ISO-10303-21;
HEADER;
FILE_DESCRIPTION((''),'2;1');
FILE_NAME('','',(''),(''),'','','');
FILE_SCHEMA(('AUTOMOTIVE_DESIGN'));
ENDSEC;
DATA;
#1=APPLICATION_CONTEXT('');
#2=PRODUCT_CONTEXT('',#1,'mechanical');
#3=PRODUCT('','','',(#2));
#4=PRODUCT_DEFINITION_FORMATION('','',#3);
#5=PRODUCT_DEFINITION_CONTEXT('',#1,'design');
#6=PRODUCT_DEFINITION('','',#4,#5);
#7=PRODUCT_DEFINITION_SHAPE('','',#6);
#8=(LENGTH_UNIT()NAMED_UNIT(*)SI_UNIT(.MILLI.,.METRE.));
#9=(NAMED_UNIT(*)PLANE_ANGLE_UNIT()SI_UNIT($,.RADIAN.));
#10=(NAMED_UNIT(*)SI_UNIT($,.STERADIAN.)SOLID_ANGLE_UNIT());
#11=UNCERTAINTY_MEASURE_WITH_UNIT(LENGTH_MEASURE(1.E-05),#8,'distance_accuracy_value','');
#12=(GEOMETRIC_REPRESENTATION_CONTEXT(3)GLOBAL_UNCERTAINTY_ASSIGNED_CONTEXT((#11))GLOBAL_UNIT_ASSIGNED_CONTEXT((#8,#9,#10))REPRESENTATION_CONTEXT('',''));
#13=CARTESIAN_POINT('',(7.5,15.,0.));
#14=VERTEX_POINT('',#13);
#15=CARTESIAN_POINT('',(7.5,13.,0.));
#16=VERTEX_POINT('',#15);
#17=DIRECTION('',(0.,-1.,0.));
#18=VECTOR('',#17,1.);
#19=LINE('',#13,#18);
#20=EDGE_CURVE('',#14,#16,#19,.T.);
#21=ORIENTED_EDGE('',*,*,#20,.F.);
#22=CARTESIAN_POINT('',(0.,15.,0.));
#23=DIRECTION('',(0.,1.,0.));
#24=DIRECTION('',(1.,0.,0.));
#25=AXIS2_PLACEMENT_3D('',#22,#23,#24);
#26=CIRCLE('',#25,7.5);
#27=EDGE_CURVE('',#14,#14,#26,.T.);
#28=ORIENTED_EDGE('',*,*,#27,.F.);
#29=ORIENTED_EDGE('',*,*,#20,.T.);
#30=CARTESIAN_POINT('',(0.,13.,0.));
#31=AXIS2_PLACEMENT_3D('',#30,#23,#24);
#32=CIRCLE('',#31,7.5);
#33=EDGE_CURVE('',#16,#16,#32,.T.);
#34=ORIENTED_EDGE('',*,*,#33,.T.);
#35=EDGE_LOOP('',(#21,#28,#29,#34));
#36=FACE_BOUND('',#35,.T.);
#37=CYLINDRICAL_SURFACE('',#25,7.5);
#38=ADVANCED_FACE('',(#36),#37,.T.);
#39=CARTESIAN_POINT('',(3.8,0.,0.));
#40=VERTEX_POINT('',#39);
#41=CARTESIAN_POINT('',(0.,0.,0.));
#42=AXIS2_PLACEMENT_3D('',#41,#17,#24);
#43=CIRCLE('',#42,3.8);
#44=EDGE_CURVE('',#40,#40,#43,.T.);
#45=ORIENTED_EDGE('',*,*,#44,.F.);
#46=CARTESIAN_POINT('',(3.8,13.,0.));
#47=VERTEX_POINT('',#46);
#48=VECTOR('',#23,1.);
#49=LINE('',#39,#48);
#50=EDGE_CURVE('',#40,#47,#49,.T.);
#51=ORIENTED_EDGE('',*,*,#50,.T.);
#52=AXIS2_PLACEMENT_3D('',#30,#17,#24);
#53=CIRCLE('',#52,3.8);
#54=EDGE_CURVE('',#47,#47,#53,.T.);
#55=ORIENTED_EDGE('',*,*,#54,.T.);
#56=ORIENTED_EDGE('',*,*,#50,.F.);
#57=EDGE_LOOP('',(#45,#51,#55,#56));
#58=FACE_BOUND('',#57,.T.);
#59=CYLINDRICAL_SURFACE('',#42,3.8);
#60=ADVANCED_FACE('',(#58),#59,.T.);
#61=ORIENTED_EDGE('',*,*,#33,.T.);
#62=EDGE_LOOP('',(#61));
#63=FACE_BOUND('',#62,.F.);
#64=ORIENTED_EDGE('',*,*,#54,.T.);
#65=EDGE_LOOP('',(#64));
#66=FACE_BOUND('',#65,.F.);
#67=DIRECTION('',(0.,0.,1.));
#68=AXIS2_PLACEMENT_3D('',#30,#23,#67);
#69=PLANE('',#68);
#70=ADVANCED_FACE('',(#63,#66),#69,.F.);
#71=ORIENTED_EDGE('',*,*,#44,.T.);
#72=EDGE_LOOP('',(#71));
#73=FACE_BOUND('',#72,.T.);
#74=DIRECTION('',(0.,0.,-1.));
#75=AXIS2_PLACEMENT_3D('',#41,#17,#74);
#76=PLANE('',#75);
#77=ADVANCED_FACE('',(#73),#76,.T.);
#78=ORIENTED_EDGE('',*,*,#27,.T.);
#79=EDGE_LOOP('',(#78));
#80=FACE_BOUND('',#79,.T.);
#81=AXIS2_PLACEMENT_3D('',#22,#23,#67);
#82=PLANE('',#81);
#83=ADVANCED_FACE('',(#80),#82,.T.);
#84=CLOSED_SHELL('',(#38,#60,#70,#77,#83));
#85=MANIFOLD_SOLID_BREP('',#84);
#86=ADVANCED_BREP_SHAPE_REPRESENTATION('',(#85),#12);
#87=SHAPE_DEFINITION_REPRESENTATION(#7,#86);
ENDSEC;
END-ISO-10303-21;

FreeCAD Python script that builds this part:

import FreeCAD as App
import Part
import Sketcher
from FreeCAD import Vector

doc = App.newDocument("Part")
params = doc.addObject("Spreadsheet::Sheet", "Params")
for row, (alias, value) in enumerate([
    ("sketch1_diameter", "7.6 mm"),
    ("pad1_length", "15 mm"),
    ("sketch2_diameter", "15 mm"),
    ("pad2_length", "2 mm"),
], start=1):
    params.set(f"A{row}", alias)
    params.set(f"B{row}", "=" + value)
    params.setAlias(f"B{row}", alias)

body = doc.addObject("PartDesign::Body", "Body")

sketch1 = body.newObject("Sketcher::SketchObject", "Sketch")
sketch1.AttachmentSupport = (doc.getObject("XZ_Plane"), [""])
sketch1.MapMode = "FlatFace"
sketch1.addGeometry(Part.Circle(Vector(0, 0, 0), Vector(0, 0, 1), 3.8), False)
sketch1.addConstraint([
    Sketcher.Constraint("Coincident", 0, 3, -1, 1),
    Sketcher.Constraint("Diameter", 0, 7.6),
])
sketch1.setExpression("Constraints[1]", "Params.sketch1_diameter")
pad1 = body.newObject("PartDesign::Pad", "Pad")
pad1.Profile = sketch1
pad1.setExpression("Length", "Params.pad1_length")
pad1.Reversed = True

sketch2 = body.newObject("Sketcher::SketchObject", "Sketch001")
sketch2.AttachmentSupport = (doc.getObject("XZ_Plane"), [""])
sketch2.MapMode = "FlatFace"
sketch2.AttachmentOffset = App.Placement(Vector(0, 0, -15), App.Rotation())
sketch2.addGeometry(Part.Circle(Vector(0, 0, 0), Vector(0, 0, 1), 8), False)
sketch2.addConstraint([
    Sketcher.Constraint("Coincident", 0, 3, -1, 1),
    Sketcher.Constraint("Diameter", 0, 15.0),
])
sketch2.setExpression("Constraints[1]", "Params.sketch2_diameter")
pad2 = body.newObject("PartDesign::Pad", "Pad001")
pad2.Profile = sketch2
pad2.setExpression("Length", "Params.pad2_length")

doc.recompute()
